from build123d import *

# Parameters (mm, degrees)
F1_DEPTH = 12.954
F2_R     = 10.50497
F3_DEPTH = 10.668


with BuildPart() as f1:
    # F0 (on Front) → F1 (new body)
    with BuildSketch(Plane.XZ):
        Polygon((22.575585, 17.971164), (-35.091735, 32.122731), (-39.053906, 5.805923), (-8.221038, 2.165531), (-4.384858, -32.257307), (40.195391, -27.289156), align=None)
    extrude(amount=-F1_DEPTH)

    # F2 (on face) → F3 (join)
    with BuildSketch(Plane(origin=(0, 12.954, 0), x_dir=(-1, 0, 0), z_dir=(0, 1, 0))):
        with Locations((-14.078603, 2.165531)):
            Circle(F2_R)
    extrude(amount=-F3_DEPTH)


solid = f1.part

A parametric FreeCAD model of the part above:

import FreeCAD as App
import Part
import Sketcher
from FreeCAD import Vector
Q = App.Units.Quantity

doc = App.newDocument("Part")
body = doc.addObject("PartDesign::Body", "Body")

sketch1 = doc.addObject("Sketcher::SketchObject", "Sketch")
body.addObject(sketch1)
sketch1.AttachmentSupport = (doc.XZ_Plane, [""])
sketch1.MapMode = "FlatFace"
sketch1.addGeometry([
    Part.LineSegment(Vector(23, 18, 0), Vector(-35, 32, 0)),
    Part.LineSegment(Vector(-35, 32, 0), Vector(-39, 6, 0)),
    Part.LineSegment(Vector(-39, 6, 0), Vector(-8, 2, 0)),
    Part.LineSegment(Vector(-8, 2, 0), Vector(-4, -32, 0)),
    Part.LineSegment(Vector(-4, -32, 0), Vector(40, -27, 0)),
    Part.LineSegment(Vector(40, -27, 0), Vector(23, 18, 0)),
], False)
sketch1.addConstraint([
    Sketcher.Constraint("Coincident", 0, 2, 1, 1),
    Sketcher.Constraint("Coincident", 1, 2, 2, 1),
    Sketcher.Constraint("Coincident", 2, 2, 3, 1),
    Sketcher.Constraint("Coincident", 3, 2, 4, 1),
    Sketcher.Constraint("Coincident", 4, 2, 5, 1),
    Sketcher.Constraint("Coincident", 5, 2, 0, 1),
    Sketcher.Constraint("Perpendicular", 3, 4),
    Sketcher.Constraint("DistanceY", 2, 2, 0, 2, 29.9572),
    Sketcher.Constraint("DistanceY", -1, 1, 0, 2, 32.122731),
    Sketcher.Constraint("DistanceX", 3, 2, -1, 1, 4.384858),
    Sketcher.Constraint("DistanceX", -1, 1, 4, 2, 40.195391),
    Sketcher.Constraint("DistanceX", 1, 2, 0, 2, 3.962171),
    Sketcher.Constraint("DistanceY", 1, 2, 0, 2, 26.316808),
    Sketcher.Constraint("DistanceX", 2, 2, 3, 2, 3.83618),
    Sketcher.Constraint("DistanceY", 3, 2, 1, 2, 38.06323),
    Sketcher.Constraint("DistanceY", 4, 2, 5, 2, 45.26032),
    Sketcher.Constraint("DistanceX", 0, 2, 5, 2, 57.66732),
    Sketcher.Constraint("Distance", 2, 31.047032),
])
pad1 = doc.addObject("PartDesign::Pad", "Pad")
body.addObject(pad1)
pad1.Profile = sketch1
pad1.Length = Q("0.51 in")
pad1.Reversed = True

sketch2 = doc.addObject("Sketcher::SketchObject", "Sketch001")
body.addObject(sketch2)
sketch2.AttachmentSupport = (doc.XZ_Plane, [""])
sketch2.MapMode = "FlatFace"
sketch2.AttachmentOffset = App.Placement(Vector(0, 0, -0.51 * 25.4), App.Rotation())
sketch2.addGeometry(Part.Circle(Vector(14, 2, 0), Vector(0, 0, 1), 11), False)
sketch2.addConstraint([
    Sketcher.Constraint("Diameter", 0, 21.00994),
    Sketcher.Constraint("DistanceY", -1, 1, 0, 3, 2.165531),
    Sketcher.Constraint("DistanceX", -1, 1, 0, 3, 14.078603),
])
pad2 = doc.addObject("PartDesign::Pad", "Pad001")
body.addObject(pad2)
pad2.Profile = sketch2
pad2.Length = Q("0.42 in")

doc.recompute()
